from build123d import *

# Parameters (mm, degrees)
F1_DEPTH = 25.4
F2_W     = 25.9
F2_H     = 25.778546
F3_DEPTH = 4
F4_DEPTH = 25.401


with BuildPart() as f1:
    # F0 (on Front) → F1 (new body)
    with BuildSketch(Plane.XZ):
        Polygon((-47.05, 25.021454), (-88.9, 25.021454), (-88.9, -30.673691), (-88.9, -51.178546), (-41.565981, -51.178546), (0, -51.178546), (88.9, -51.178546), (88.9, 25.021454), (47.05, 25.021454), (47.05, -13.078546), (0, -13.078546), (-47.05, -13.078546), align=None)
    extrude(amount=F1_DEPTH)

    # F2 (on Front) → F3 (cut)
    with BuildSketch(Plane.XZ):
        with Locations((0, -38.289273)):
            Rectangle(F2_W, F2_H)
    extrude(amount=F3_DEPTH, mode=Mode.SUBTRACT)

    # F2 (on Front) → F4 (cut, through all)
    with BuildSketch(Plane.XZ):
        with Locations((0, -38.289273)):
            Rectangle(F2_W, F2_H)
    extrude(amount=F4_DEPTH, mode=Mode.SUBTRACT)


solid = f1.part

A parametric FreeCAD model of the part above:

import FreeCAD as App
import Part
import Sketcher
from FreeCAD import Vector
Q = App.Units.Quantity

doc = App.newDocument("Part")
body = doc.addObject("PartDesign::Body", "Body")

# Sketch on XZ plane
sketch1 = body.newObject("Sketcher::SketchObject", "Sketch")
sketch1.AttachmentSupport = (doc.getObject("XZ_Plane"), [""])
sketch1.MapMode = "FlatFace"
sketch1.addGeometry([
    Part.LineSegment(Vector(-47, 25, 0), Vector(-89, 25, 0)),  # 0
    Part.LineSegment(Vector(-89, 25, 0), Vector(-89, -51, 0)),  # 1
    Part.LineSegment(Vector(-89, -51, 0), Vector(89, -51, 0)),  # 2
    Part.LineSegment(Vector(89, -51, 0), Vector(89, 25, 0)),  # 3
    Part.LineSegment(Vector(89, 25, 0), Vector(47, 25, 0)),  # 4
    Part.LineSegment(Vector(47, 25, 0), Vector(47, -13, 0)),  # 5
    Part.LineSegment(Vector(47, -13, 0), Vector(-47, -13, 0)),  # 6
    Part.LineSegment(Vector(-47, -13, 0), Vector(-47, 25, 0)),  # 7
], False)
sketch1.addConstraint([
    Sketcher.Constraint("Coincident", 0, 2, 1, 1),
    Sketcher.Constraint("Coincident", 1, 2, 2, 1),
    Sketcher.Constraint("Coincident", 2, 2, 3, 1),
    Sketcher.Constraint("Coincident", 3, 2, 4, 1),
    Sketcher.Constraint("Coincident", 4, 2, 5, 1),
    Sketcher.Constraint("Coincident", 5, 2, 6, 1),
    Sketcher.Constraint("Coincident", 6, 2, 7, 1),
    Sketcher.Constraint("Coincident", 7, 2, 0, 1),
    Sketcher.Constraint("Horizontal", 0),
    Sketcher.Constraint("Vertical", 1),
    Sketcher.Constraint("Horizontal", 2),
    Sketcher.Constraint("Vertical", 3),
    Sketcher.Constraint("Horizontal", 4),
    Sketcher.Constraint("Vertical", 5),
    Sketcher.Constraint("Horizontal", 6),
    Sketcher.Constraint("Vertical", 7),
    Sketcher.Constraint("Symmetric", 0, 2, 3, 2, -2),
    Sketcher.Constraint("Equal", 0, 4),
    Sketcher.Constraint("DistanceX", 2, 1, 2, 2, Q("7 in")),
    Sketcher.Constraint("DistanceY", 1, 2, 1, 1, Q("3 in")),
    Sketcher.Constraint("DistanceY", 5, 2, 5, 1, Q("1.5 in")),
    Sketcher.Constraint("DistanceX", 0, 2, 0, 1, Q("41.85 mm")),
    Sketcher.Constraint("DistanceY", -1, 1, 0, 2, Q("25.021454 mm")),
])
pad1 = body.newObject("PartDesign::Pad", "Pad")
pad1.Profile = sketch1
pad1.Length = Q("1 in")

# Sketch on XZ plane
sketch2 = body.newObject("Sketcher::SketchObject", "Sketch001")
sketch2.AttachmentSupport = (doc.getObject("XZ_Plane"), [""])
sketch2.MapMode = "FlatFace"
sketch2.addGeometry([
    Part.LineSegment(Vector(-13, -25, 0), Vector(-13, -51, 0)),
    Part.LineSegment(Vector(-13, -51, 0), Vector(13, -51, 0)),
    Part.LineSegment(Vector(13, -51, 0), Vector(13, -25, 0)),
    Part.LineSegment(Vector(13, -25, 0), Vector(-13, -25, 0)),
], False)
sketch2.addConstraint([
    Sketcher.Constraint("Coincident", 0, 2, 1, 1),
    Sketcher.Constraint("Coincident", 1, 2, 2, 1),
    Sketcher.Constraint("Coincident", 2, 2, 3, 1),
    Sketcher.Constraint("Coincident", 3, 2, 0, 1),
    Sketcher.Constraint("Vertical", 0),
    Sketcher.Constraint("Horizontal", 1),
    Sketcher.Constraint("Vertical", 2),
    Sketcher.Constraint("Horizontal", 3),
    Sketcher.Constraint("DistanceY", 2, 2, -1, 1, Q("1 in")),
    Sketcher.Constraint("DistanceX", 1, 1, 1, 2, Q("25.9 mm")),
    Sketcher.Constraint("DistanceX", 0, 2, -1, 1, Q("12.95 mm")),
    Sketcher.Constraint("DistanceY", 0, 2, 0, 1, Q("25.778546 mm")),
])
pocket1 = body.newObject("PartDesign::Pocket", "Pocket")
pocket1.Profile = sketch2
pocket1.Length = 4
pocket1.Reversed = True

# Sketch on XZ plane
sketch3 = body.newObject("Sketcher::SketchObject", "Sketch002")
sketch3.AttachmentSupport = (doc.getObject("XZ_Plane"), [""])
sketch3.MapMode = "FlatFace"
sketch3.addGeometry([
    Part.LineSegment(Vector(-13, -25, 0), Vector(-13, -51, 0)),
    Part.LineSegment(Vector(-13, -51, 0), Vector(13, -51, 0)),
    Part.LineSegment(Vector(13, -51, 0), Vector(13, -25, 0)),
    Part.LineSegment(Vector(13, -25, 0), Vector(-13, -25, 0)),
], False)
sketch3.addConstraint([
    Sketcher.Constraint("Coincident", 0, 2, 1, 1),
    Sketcher.Constraint("Coincident", 1, 2, 2, 1),
    Sketcher.Constraint("Coincident", 2, 2, 3, 1),
    Sketcher.Constraint("Coincident", 3, 2, 0, 1),
    Sketcher.Constraint("Vertical", 0),
    Sketcher.Constraint("Horizontal", 1),
    Sketcher.Constraint("Vertical", 2),
    Sketcher.Constraint("Horizontal", 3),
    Sketcher.Constraint("DistanceY", 2, 2, -1, 1, Q("1 in")),
    Sketcher.Constraint("DistanceX", 1, 1, 1, 2, Q("25.9 mm")),
    Sketcher.Constraint("DistanceX", 0, 2, -1, 1, Q("12.95 mm")),
    Sketcher.Constraint("DistanceY", 0, 2, 0, 1, Q("25.778546 mm")),
])
pocket2 = body.newObject("PartDesign::Pocket", "Pocket001")
pocket2.Profile = sketch3
pocket2.Type = "ThroughAll"
pocket2.Reversed = True

doc.recompute()
